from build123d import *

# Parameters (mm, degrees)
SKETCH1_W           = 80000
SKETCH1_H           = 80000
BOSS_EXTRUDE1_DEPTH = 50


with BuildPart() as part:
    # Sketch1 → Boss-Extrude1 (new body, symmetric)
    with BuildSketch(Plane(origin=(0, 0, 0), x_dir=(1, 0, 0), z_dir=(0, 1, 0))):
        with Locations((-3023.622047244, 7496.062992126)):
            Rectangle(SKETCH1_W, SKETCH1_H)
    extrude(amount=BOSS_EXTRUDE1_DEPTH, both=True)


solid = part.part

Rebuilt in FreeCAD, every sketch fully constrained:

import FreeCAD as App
import Part
import Sketcher

V = App.Vector
Q = App.Units.Quantity

doc = App.newDocument("Part")
body = doc.addObject("PartDesign::Body", "Body")

# Sketch on XZ plane
sketch1 = body.newObject("Sketcher::SketchObject", "Sketch")
sketch1.AttachmentSupport = (doc.getObject("XZ_Plane"), [""])
sketch1.MapMode = "FlatFace"
sketch1.addGeometry([
    Part.LineSegment(V(-43024, -47496, 0), V(-43024, 32504, 0)),
    Part.LineSegment(V(-43024, 32504, 0), V(36976, 32504, 0)),
    Part.LineSegment(V(36976, 32504, 0), V(36976, -47496, 0)),
    Part.LineSegment(V(36976, -47496, 0), V(-43024, -47496, 0)),
], False)
sketch1.addConstraint([
    Sketcher.Constraint("Coincident", 0, 2, 1, 1),
    Sketcher.Constraint("Coincident", 1, 2, 2, 1),
    Sketcher.Constraint("Coincident", 2, 2, 3, 1),
    Sketcher.Constraint("Coincident", 3, 2, 0, 1),
    Sketcher.Constraint("Vertical", 0),
    Sketcher.Constraint("Horizontal", 1),
    Sketcher.Constraint("Vertical", 2),
    Sketcher.Constraint("Horizontal", 3),
    Sketcher.Constraint("Equal", 3, 0),
    Sketcher.Constraint("DistanceX", 1, 1, 1, 2, Q("80000 mm")),
    Sketcher.Constraint("DistanceX", 0, 2, -1, 1, Q("43023.622047 mm")),
    Sketcher.Constraint("DistanceY", -1, 1, 0, 2, Q("32503.937008 mm")),
])
pad1 = body.newObject("PartDesign::Pad", "Pad")
pad1.Profile = sketch1
pad1.Length = 100
pad1.Midplane = True

doc.recompute()
